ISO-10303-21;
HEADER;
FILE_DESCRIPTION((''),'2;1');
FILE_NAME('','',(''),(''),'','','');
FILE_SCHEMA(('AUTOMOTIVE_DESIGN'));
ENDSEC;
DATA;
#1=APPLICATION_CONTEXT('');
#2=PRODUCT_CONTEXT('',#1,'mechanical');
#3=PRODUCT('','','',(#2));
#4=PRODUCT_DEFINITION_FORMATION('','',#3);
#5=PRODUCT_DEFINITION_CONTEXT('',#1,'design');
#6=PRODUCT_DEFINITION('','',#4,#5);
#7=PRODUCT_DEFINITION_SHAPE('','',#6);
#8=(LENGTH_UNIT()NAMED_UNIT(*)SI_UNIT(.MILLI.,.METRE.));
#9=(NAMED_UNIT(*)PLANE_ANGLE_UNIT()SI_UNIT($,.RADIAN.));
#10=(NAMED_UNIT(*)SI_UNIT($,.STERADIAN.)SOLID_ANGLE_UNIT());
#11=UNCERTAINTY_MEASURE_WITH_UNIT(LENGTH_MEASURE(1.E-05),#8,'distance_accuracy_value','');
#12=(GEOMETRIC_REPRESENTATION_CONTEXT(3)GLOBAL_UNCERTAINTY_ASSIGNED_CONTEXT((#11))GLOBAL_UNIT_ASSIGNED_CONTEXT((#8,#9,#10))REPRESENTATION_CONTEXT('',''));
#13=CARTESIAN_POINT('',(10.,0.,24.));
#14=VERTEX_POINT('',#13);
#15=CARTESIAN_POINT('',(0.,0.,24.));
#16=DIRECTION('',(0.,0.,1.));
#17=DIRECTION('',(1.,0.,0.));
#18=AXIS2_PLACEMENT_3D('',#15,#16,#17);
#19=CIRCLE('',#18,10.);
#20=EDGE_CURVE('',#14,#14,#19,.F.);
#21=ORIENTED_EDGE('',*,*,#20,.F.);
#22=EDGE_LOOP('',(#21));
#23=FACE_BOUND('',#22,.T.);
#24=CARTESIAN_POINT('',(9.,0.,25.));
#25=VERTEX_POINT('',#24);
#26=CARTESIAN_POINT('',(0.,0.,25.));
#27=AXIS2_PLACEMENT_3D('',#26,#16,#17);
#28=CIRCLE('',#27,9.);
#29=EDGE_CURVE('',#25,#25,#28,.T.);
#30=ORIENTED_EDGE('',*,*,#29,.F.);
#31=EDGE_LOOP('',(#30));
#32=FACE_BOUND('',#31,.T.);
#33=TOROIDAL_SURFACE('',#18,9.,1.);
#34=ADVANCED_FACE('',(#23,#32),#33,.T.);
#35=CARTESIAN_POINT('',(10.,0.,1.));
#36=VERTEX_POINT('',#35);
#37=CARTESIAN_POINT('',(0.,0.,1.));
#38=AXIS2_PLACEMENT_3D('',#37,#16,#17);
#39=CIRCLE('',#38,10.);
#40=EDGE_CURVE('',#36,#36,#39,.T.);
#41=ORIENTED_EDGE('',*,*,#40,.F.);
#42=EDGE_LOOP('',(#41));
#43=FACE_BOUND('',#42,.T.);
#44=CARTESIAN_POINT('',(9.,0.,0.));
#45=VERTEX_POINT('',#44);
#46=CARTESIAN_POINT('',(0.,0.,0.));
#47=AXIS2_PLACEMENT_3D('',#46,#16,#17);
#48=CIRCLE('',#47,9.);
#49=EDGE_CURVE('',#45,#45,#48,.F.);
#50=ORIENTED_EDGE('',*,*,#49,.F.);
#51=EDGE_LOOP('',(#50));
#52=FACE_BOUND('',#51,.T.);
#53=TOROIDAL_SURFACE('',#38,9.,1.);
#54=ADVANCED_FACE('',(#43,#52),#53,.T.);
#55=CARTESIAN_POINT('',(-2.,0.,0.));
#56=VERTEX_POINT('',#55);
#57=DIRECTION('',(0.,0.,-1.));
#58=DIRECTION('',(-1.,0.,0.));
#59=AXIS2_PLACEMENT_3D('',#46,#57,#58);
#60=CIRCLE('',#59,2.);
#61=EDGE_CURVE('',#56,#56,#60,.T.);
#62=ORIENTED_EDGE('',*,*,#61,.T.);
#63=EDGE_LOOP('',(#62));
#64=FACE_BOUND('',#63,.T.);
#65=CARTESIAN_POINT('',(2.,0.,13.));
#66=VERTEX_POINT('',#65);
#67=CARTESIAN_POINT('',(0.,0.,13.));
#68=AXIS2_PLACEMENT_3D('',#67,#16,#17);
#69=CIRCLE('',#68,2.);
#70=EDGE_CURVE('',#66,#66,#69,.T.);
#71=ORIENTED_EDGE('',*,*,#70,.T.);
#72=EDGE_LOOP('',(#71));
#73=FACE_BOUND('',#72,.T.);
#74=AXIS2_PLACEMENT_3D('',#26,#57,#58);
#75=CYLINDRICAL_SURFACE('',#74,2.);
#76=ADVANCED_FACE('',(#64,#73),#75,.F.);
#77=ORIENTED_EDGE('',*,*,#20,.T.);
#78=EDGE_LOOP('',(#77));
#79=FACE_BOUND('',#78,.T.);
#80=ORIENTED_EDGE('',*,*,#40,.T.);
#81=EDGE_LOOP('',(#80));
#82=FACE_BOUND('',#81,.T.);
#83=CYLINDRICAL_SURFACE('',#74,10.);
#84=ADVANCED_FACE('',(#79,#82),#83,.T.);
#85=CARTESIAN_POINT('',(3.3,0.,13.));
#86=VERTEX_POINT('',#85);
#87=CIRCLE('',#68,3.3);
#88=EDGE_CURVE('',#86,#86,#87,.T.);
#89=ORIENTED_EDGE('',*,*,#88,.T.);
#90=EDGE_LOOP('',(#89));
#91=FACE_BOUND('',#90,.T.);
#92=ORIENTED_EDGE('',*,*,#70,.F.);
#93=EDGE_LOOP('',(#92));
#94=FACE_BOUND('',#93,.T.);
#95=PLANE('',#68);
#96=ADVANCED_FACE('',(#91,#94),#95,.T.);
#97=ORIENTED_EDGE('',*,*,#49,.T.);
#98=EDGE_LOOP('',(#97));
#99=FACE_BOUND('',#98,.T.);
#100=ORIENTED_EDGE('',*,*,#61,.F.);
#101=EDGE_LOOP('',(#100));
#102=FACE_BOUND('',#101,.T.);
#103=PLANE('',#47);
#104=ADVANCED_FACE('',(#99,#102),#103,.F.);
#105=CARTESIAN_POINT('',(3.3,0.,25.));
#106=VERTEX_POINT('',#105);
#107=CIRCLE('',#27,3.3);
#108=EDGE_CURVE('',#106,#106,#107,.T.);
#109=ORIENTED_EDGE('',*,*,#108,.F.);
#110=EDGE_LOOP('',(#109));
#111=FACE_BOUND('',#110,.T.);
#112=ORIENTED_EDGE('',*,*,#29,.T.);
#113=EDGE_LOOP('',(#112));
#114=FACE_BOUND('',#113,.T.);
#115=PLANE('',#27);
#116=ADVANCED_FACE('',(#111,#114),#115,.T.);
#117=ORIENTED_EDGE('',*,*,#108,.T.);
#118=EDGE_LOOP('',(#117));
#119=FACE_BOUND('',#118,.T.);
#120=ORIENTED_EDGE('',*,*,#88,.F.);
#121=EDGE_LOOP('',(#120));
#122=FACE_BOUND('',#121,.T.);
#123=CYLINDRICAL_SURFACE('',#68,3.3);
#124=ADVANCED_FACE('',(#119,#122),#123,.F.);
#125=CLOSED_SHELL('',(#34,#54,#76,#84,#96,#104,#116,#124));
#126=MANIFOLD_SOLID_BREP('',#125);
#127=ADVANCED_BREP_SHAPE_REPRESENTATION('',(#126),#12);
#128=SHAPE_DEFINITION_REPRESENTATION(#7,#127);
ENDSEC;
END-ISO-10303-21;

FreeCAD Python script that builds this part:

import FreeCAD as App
import Part
import Sketcher

V = App.Vector
Q = App.Units.Quantity


def edges_at(feature, points):
    """Names of the edges that pass closest to the given points."""
    edges = feature.Shape.Edges
    near = lambda p: min(range(len(edges)), key=lambda i: edges[i].distToShape(Part.Vertex(*p))[0])
    return sorted({f"Edge{near(p) + 1}" for p in points})

doc = App.newDocument("Part")
body = doc.addObject("PartDesign::Body", "Body")

sketch1 = body.newObject("Sketcher::SketchObject", "Sketch")
sketch1.AttachmentSupport = (doc.getObject("XY_Plane"), [""])
sketch1.MapMode = "FlatFace"
sketch1.addGeometry(Part.Circle(V(0, 0, 0), V(0, 0, 1), 10), False)
sketch1.addConstraint([
    Sketcher.Constraint("Coincident", 0, 3, -1, 1),
    Sketcher.Constraint("Diameter", 0, Q("20 mm")),
])
pad1 = body.newObject("PartDesign::Pad", "Pad")
pad1.Profile = sketch1
pad1.Length = 25

sketch2 = body.newObject("Sketcher::SketchObject", "Sketch001")
sketch2.AttachmentSupport = (doc.getObject("XY_Plane"), [""])
sketch2.MapMode = "FlatFace"
sketch2.AttachmentOffset = App.Placement(V(0, 0, 25), App.Rotation())
sketch2.addGeometry(Part.Circle(V(0, 0, 0), V(0, 0, 1), 3.3), False)
sketch2.addConstraint([
    Sketcher.Constraint("Coincident", 0, 3, -1, 1),
    Sketcher.Constraint("Diameter", 0, Q("6.6 mm")),
])
pocket1 = body.newObject("PartDesign::Pocket", "Pocket")
pocket1.Profile = sketch2
pocket1.Length = 12
doc.recompute()

fillet = body.newObject("PartDesign::Fillet", "Fillet")
fillet.Base = (pocket1, edges_at(pocket1, [(-10, 0, 0), (-10, 0, 25)]))
fillet.Radius = 1

sketch3 = body.newObject("Sketcher::SketchObject", "Sketch002")
sketch3.AttachmentSupport = (doc.getObject("XY_Plane"), [""])
sketch3.MapMode = "FlatFace"
sketch3.addGeometry(Part.Circle(V(0, 0, 0), V(0, 0, 1), 2), False)
sketch3.addConstraint([
    Sketcher.Constraint("Coincident", 0, 3, -1, 1),
    Sketcher.Constraint("Diameter", 0, Q("4 mm")),
])
pocket2 = body.newObject("PartDesign::Pocket", "Pocket001")
pocket2.Profile = sketch3
pocket2.Type = "ThroughAll"
pocket2.Reversed = True

doc.recompute()
